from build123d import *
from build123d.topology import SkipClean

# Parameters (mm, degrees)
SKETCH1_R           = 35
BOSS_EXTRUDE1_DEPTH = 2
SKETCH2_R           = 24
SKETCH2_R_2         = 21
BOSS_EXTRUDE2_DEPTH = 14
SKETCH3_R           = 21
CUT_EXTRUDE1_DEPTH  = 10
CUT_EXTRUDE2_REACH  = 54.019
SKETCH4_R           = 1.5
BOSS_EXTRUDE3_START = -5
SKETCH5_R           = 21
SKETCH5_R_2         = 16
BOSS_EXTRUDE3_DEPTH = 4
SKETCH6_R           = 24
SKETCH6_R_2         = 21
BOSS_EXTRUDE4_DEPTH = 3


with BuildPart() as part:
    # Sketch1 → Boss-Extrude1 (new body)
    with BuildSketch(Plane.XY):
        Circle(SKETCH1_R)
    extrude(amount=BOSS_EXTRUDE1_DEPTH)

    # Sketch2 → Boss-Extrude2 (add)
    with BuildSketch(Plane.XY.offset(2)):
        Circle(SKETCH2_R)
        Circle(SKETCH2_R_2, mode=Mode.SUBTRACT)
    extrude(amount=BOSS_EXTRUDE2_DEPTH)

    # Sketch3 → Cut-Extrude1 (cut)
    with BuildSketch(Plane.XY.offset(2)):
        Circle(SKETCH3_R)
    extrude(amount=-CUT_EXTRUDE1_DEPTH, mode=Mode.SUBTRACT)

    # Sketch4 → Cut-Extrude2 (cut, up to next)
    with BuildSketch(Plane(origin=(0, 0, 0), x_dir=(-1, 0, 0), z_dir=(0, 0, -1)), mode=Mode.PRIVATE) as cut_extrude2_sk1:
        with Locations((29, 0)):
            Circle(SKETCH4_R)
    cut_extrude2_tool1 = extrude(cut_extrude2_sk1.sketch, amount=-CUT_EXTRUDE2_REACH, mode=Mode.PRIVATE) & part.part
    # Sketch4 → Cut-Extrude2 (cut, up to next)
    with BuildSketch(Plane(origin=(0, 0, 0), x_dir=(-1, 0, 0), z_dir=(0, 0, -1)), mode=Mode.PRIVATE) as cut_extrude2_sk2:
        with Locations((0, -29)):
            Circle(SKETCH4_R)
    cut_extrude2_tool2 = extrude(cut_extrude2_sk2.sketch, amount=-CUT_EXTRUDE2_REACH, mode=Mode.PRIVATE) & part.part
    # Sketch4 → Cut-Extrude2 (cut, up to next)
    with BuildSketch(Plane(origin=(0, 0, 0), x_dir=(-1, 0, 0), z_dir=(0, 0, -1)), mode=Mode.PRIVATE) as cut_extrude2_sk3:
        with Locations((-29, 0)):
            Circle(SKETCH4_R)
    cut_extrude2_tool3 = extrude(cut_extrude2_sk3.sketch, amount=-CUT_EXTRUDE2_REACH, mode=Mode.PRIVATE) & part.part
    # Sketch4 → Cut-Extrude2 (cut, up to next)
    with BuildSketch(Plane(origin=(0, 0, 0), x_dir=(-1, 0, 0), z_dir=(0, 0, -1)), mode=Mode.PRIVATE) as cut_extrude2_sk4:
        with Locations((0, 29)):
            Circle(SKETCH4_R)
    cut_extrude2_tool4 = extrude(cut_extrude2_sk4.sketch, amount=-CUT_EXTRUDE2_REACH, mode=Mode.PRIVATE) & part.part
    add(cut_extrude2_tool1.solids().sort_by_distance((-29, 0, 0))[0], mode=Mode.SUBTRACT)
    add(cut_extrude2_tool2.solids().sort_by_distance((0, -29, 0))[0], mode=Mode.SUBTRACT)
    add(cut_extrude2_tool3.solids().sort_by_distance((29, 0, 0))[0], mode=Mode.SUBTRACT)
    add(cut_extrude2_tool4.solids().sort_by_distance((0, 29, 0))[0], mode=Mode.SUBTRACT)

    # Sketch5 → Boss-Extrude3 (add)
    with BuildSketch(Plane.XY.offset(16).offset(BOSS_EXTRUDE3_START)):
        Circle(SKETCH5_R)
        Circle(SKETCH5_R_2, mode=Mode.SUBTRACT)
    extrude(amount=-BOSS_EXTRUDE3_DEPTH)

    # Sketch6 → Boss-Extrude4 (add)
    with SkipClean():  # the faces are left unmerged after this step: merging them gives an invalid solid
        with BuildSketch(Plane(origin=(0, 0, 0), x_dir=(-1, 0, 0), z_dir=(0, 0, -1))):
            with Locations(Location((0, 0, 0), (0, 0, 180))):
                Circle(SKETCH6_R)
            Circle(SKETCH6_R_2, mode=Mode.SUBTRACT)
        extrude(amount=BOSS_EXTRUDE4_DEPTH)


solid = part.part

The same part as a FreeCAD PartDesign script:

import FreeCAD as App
import Part
import Sketcher
from FreeCAD import Vector

doc = App.newDocument("Part")
params = doc.addObject("Spreadsheet::Sheet", "Params")
for row, (alias, value) in enumerate([
    ("sketch1_diameter", "70 mm"),
    ("pad1_length", "2 mm"),
    ("sketch2_diameter", "48 mm"),
    ("sketch2_diameter2", "42 mm"),
    ("pad2_length", "14 mm"),
    ("sketch3_diameter", "42 mm"),
    ("pocket1_length", "10 mm"),
    ("sketch4_diameter", "3 mm"),
    ("sketch5_diameter", "3 mm"),
    ("sketch6_diameter", "3 mm"),
    ("sketch7_diameter", "3 mm"),
    ("sketch8_diameter", "42 mm"),
    ("sketch8_diameter2", "32 mm"),
    ("pad3_length", "4 mm"),
    ("sketch9_diameter", "48 mm"),
    ("sketch9_diameter2", "42 mm"),
    ("pad4_length", "3 mm"),
], start=1):
    params.set(f"A{row}", alias)
    params.set(f"B{row}", "=" + value)
    params.setAlias(f"B{row}", alias)

body = doc.addObject("PartDesign::Body", "Body")

sketch1 = doc.addObject("Sketcher::SketchObject", "Sketch")
body.addObject(sketch1)
sketch1.AttachmentSupport = (doc.XY_Plane, [""])
sketch1.MapMode = "FlatFace"
sketch1.addGeometry(Part.Circle(Vector(0, 0, 0), Vector(0, 0, 1), 35), False)
sketch1.addConstraint([
    Sketcher.Constraint("Coincident", 0, 3, -1, 1),
    Sketcher.Constraint("Diameter", 0, 70.0),
])
sketch1.setExpression("Constraints[1]", "Params.sketch1_diameter")
pad1 = doc.addObject("PartDesign::Pad", "Pad")
body.addObject(pad1)
pad1.Profile = sketch1
pad1.setExpression("Length", "Params.pad1_length")

sketch2 = doc.addObject("Sketcher::SketchObject", "Sketch001")
body.addObject(sketch2)
sketch2.AttachmentSupport = (doc.XY_Plane, [""])
sketch2.MapMode = "FlatFace"
sketch2.AttachmentOffset = App.Placement(Vector(0, 0, 2), App.Rotation())
sketch2.addGeometry([
    Part.Circle(Vector(0, 0, 0), Vector(0, 0, 1), 24),
    Part.Circle(Vector(0, 0, 0), Vector(0, 0, 1), 21),
], False)
sketch2.addConstraint([
    Sketcher.Constraint("Coincident", 0, 3, -1, 1),
    Sketcher.Constraint("Coincident", 1, 3, -1, 1),
    Sketcher.Constraint("Diameter", 0, 48.0),
    Sketcher.Constraint("Diameter", 1, 42.0),
])
sketch2.setExpression("Constraints[2]", "Params.sketch2_diameter")
sketch2.setExpression("Constraints[3]", "Params.sketch2_diameter2")
pad2 = doc.addObject("PartDesign::Pad", "Pad001")
body.addObject(pad2)
pad2.Profile = sketch2
pad2.setExpression("Length", "Params.pad2_length")

sketch3 = doc.addObject("Sketcher::SketchObject", "Sketch002")
body.addObject(sketch3)
sketch3.AttachmentSupport = (doc.XY_Plane, [""])
sketch3.MapMode = "FlatFace"
sketch3.AttachmentOffset = App.Placement(Vector(0, 0, 2), App.Rotation())
sketch3.addGeometry(Part.Circle(Vector(0, 0, 0), Vector(0, 0, 1), 21), False)
sketch3.addConstraint([
    Sketcher.Constraint("Coincident", 0, 3, -1, 1),
    Sketcher.Constraint("Diameter", 0, 42.0),
])
sketch3.setExpression("Constraints[1]", "Params.sketch3_diameter")
pocket1 = doc.addObject("PartDesign::Pocket", "Pocket")
body.addObject(pocket1)
pocket1.Profile = sketch3
pocket1.setExpression("Length", "Params.pocket1_length")

sketch4 = doc.addObject("Sketcher::SketchObject", "Sketch003")
body.addObject(sketch4)
sketch4.AttachmentSupport = (doc.XY_Plane, [""])
sketch4.MapMode = "FlatFace"
sketch4.addGeometry(Part.Circle(Vector(-29, 0, 0), Vector(0, 0, 1), 1.5), False)
sketch4.addConstraint([
    Sketcher.Constraint("PointOnObject", 0, 3, -1),
    Sketcher.Constraint("Diameter", 0, 3.0),
    Sketcher.Constraint("DistanceX", 0, 3, -1, 1, 29.0),
])
sketch4.setExpression("Constraints[1]", "Params.sketch4_diameter")
pocket2 = doc.addObject("PartDesign::Pocket", "Pocket001")
body.addObject(pocket2)
pocket2.Profile = sketch4
pocket2.Type = "UpToFirst"
pocket2.Reversed = True

sketch5 = doc.addObject("Sketcher::SketchObject", "Sketch004")
body.addObject(sketch5)
sketch5.AttachmentSupport = (doc.XY_Plane, [""])
sketch5.MapMode = "FlatFace"
sketch5.addGeometry(Part.Circle(Vector(0, -29, 0), Vector(0, 0, 1), 1.5), False)
sketch5.addConstraint([
    Sketcher.Constraint("PointOnObject", 0, 3, -2),
    Sketcher.Constraint("Diameter", 0, 3.0),
    Sketcher.Constraint("DistanceY", 0, 3, -1, 1, 29.0),
])
sketch5.setExpression("Constraints[1]", "Params.sketch5_diameter")
pocket3 = doc.addObject("PartDesign::Pocket", "Pocket002")
body.addObject(pocket3)
pocket3.Profile = sketch5
pocket3.Type = "UpToFirst"
pocket3.Reversed = True

sketch6 = doc.addObject("Sketcher::SketchObject", "Sketch005")
body.addObject(sketch6)
sketch6.AttachmentSupport = (doc.XY_Plane, [""])
sketch6.MapMode = "FlatFace"
sketch6.addGeometry(Part.Circle(Vector(29, 0, 0), Vector(0, 0, 1), 1.5), False)
sketch6.addConstraint([
    Sketcher.Constraint("PointOnObject", 0, 3, -1),
    Sketcher.Constraint("Diameter", 0, 3.0),
    Sketcher.Constraint("DistanceX", -1, 1, 0, 3, 29.0),
])
sketch6.setExpression("Constraints[1]", "Params.sketch6_diameter")
pocket4 = doc.addObject("PartDesign::Pocket", "Pocket003")
body.addObject(pocket4)
pocket4.Profile = sketch6
pocket4.Type = "UpToFirst"
pocket4.Reversed = True

sketch7 = doc.addObject("Sketcher::SketchObject", "Sketch006")
body.addObject(sketch7)
sketch7.AttachmentSupport = (doc.XY_Plane, [""])
sketch7.MapMode = "FlatFace"
sketch7.addGeometry(Part.Circle(Vector(0, 29, 0), Vector(0, 0, 1), 1.5), False)
sketch7.addConstraint([
    Sketcher.Constraint("PointOnObject", 0, 3, -2),
    Sketcher.Constraint("Diameter", 0, 3.0),
    Sketcher.Constraint("DistanceY", -1, 1, 0, 3, 29.0),
])
sketch7.setExpression("Constraints[1]", "Params.sketch7_diameter")
pocket5 = doc.addObject("PartDesign::Pocket", "Pocket004")
body.addObject(pocket5)
pocket5.Profile = sketch7
pocket5.Type = "UpToFirst"
pocket5.Reversed = True

sketch8 = doc.addObject("Sketcher::SketchObject", "Sketch007")
body.addObject(sketch8)
sketch8.AttachmentSupport = (doc.XY_Plane, [""])
sketch8.MapMode = "FlatFace"
sketch8.AttachmentOffset = App.Placement(Vector(0, 0, 11), App.Rotation())
sketch8.addGeometry([
    Part.Circle(Vector(0, 0, 0), Vector(0, 0, 1), 21),
    Part.Circle(Vector(0, 0, 0), Vector(0, 0, 1), 16),
], False)
sketch8.addConstraint([
    Sketcher.Constraint("Coincident", 0, 3, -1, 1),
    Sketcher.Constraint("Coincident", 1, 3, -1, 1),
    Sketcher.Constraint("Diameter", 0, 42.0),
    Sketcher.Constraint("Diameter", 1, 32.0),
])
sketch8.setExpression("Constraints[2]", "Params.sketch8_diameter")
sketch8.setExpression("Constraints[3]", "Params.sketch8_diameter2")
pad3 = doc.addObject("PartDesign::Pad", "Pad002")
body.addObject(pad3)
pad3.Profile = sketch8
pad3.setExpression("Length", "Params.pad3_length")
pad3.Reversed = True

sketch9 = doc.addObject("Sketcher::SketchObject", "Sketch008")
body.addObject(sketch9)
sketch9.AttachmentSupport = (doc.XY_Plane, [""])
sketch9.MapMode = "FlatFace"
sketch9.addGeometry([
    Part.Circle(Vector(0, 0, 0), Vector(0, 0, 1), 24),
    Part.Circle(Vector(0, 0, 0), Vector(0, 0, 1), 21),
], False)
sketch9.addConstraint([
    Sketcher.Constraint("Coincident", 0, 3, -1, 1),
    Sketcher.Constraint("Coincident", 1, 3, -1, 1),
    Sketcher.Constraint("Diameter", 0, 48.0),
    Sketcher.Constraint("Diameter", 1, 42.0),
])
sketch9.setExpression("Constraints[2]", "Params.sketch9_diameter")
sketch9.setExpression("Constraints[3]", "Params.sketch9_diameter2")
pad4 = doc.addObject("PartDesign::Pad", "Pad003")
body.addObject(pad4)
pad4.Profile = sketch9
pad4.setExpression("Length", "Params.pad4_length")
pad4.Reversed = True

doc.recompute()
